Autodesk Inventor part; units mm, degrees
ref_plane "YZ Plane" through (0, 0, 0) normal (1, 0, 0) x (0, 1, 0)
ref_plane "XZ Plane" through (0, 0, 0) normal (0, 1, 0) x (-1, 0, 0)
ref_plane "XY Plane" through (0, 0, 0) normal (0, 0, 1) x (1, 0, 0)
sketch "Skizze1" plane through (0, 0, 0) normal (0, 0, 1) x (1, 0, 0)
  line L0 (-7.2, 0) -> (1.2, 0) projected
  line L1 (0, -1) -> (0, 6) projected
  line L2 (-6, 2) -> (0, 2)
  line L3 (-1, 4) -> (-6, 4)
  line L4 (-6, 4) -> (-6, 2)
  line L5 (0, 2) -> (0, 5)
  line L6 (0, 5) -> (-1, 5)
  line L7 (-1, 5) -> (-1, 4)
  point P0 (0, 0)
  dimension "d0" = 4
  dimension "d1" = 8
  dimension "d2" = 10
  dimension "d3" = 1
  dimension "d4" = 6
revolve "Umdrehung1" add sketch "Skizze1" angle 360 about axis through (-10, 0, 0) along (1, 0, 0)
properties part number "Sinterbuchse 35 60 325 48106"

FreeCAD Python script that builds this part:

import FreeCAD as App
import Part
import Sketcher
Q = App.Units.Quantity


def add_polygon(sketch, points):
    """Adds a closed chain of lines whose ends are joined by coincident constraints."""
    first, n = sketch.GeometryCount, len(points)
    for a, b in zip(points, points[1:] + points[:1]):
        sketch.addGeometry(Part.LineSegment(App.Vector(*a, 0), App.Vector(*b, 0)), False)
    for i in range(n):
        sketch.addConstraint(Sketcher.Constraint("Coincident", first + i, 2, first + (i + 1) % n, 1))

doc = App.newDocument("Part")
params = doc.addObject("Spreadsheet::Sheet", "Params")
for row, (alias, value) in enumerate([
    ("sketch1_width", "6 mm"),
    ("sketch1_width2", "1 mm"),
    ("sketch1_height", "3 mm"),
    ("revolution_angle", "360 deg"),
], start=1):
    params.set(f"A{row}", alias)
    params.set(f"B{row}", "=" + value)
    params.setAlias(f"B{row}", alias)

body = doc.addObject("PartDesign::Body", "Body")

sketch1 = doc.addObject("Sketcher::SketchObject", "Sketch")
body.addObject(sketch1)
sketch1.AttachmentSupport = (doc.XY_Plane, [""])
sketch1.MapMode = "FlatFace"
add_polygon(sketch1, [(-6, 2), (0, 2), (0, 5), (-1, 5), (-1, 4), (-6, 4)])
sketch1.addConstraint([
    Sketcher.Constraint("Horizontal", 0),
    Sketcher.Constraint("Vertical", 1),
    Sketcher.Constraint("Horizontal", 2),
    Sketcher.Constraint("Vertical", 3),
    Sketcher.Constraint("Horizontal", 4),
    Sketcher.Constraint("Vertical", 5),
    Sketcher.Constraint("PointOnObject", 0, 2, -2),
    Sketcher.Constraint("Equal", 2, 3),
    Sketcher.Constraint("DistanceX", 0, 1, 0, 2, Q("6 mm")),
    Sketcher.Constraint("DistanceX", 2, 2, 2, 1, Q("1 mm")),
    Sketcher.Constraint("DistanceY", -1, 1, 3, 2, Q("4 mm")),
    Sketcher.Constraint("DistanceY", 1, 1, 1, 2, Q("3 mm")),
])
sketch1.setExpression("Constraints[14]", "Params.sketch1_width")
sketch1.setExpression("Constraints[15]", "Params.sketch1_width2")
sketch1.setExpression("Constraints[17]", "Params.sketch1_height")
revolution = doc.addObject("PartDesign::Revolution", "Revolution")
body.addObject(revolution)
revolution.Profile = sketch1
revolution.ReferenceAxis = (sketch1, ["H_Axis"])
revolution.setExpression("Angle", "Params.revolution_angle")

doc.recompute()
